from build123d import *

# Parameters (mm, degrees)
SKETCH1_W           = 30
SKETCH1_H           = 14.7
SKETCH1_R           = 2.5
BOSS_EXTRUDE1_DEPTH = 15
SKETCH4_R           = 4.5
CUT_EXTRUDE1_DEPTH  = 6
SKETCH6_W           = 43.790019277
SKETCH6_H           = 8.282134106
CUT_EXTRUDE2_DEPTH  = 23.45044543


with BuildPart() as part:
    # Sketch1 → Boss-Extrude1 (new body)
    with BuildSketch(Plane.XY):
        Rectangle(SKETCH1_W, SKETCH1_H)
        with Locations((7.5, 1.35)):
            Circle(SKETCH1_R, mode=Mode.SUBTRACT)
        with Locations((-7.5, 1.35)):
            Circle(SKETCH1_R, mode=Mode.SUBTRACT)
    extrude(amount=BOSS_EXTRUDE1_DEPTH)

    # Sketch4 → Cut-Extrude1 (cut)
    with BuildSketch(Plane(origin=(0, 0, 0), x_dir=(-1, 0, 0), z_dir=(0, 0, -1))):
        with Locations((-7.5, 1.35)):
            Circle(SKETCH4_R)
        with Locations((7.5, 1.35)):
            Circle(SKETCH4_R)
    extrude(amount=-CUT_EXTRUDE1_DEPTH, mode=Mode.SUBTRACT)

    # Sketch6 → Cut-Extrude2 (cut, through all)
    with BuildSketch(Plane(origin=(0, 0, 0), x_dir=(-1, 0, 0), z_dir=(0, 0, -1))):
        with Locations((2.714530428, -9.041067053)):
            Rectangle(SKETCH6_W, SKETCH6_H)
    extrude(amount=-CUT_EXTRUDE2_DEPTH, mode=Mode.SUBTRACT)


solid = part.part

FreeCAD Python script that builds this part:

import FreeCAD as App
import Part
import Sketcher
from FreeCAD import Vector
Q = App.Units.Quantity


def add_polygon(sketch, points):
    """Adds a closed chain of lines whose ends are joined by coincident constraints."""
    first, n = sketch.GeometryCount, len(points)
    for a, b in zip(points, points[1:] + points[:1]):
        sketch.addGeometry(Part.LineSegment(App.Vector(*a, 0), App.Vector(*b, 0)), False)
    for i in range(n):
        sketch.addConstraint(Sketcher.Constraint("Coincident", first + i, 2, first + (i + 1) % n, 1))

doc = App.newDocument("Part")
body = doc.addObject("PartDesign::Body", "Body")

# Sketch on XY plane
sketch1 = body.newObject("Sketcher::SketchObject", "Sketch")
sketch1.AttachmentSupport = (doc.getObject("XY_Plane"), [""])
sketch1.MapMode = "FlatFace"
add_polygon(sketch1, [(-15, 7.35), (-15, -7.35), (15, -7.35), (15, 7.35)])  # lines 0-3
sketch1.addGeometry(Part.Circle(Vector(-7.5, 1.35, 0), Vector(0, 0, 1), 2.5), False)  # 4
sketch1.addGeometry(Part.Circle(Vector(7.5, 1.35, 0), Vector(0, 0, 1), 2.5), False)  # 5
sketch1.addConstraint([
    Sketcher.Constraint("Vertical", 0),
    Sketcher.Constraint("Horizontal", 1),
    Sketcher.Constraint("Vertical", 2),
    Sketcher.Constraint("Horizontal", 3),
    Sketcher.Constraint("Equal", 4, 5),
    Sketcher.Constraint("Symmetric", 0, 2, 2, 2, -1, 1),
    Sketcher.Constraint("Symmetric", 4, 3, 5, 3, -2),
    Sketcher.Constraint("Diameter", 4, Q("5 mm")),
    Sketcher.Constraint("DistanceX", 1, 1, 1, 2, Q("30 mm")),
    Sketcher.Constraint("DistanceY", 0, 2, 0, 1, Q("14.7 mm")),
    Sketcher.Constraint("DistanceX", 4, 3, 5, 3, Q("15 mm")),
    Sketcher.Constraint("DistanceY", 5, 3, 2, 2, Q("6 mm")),
])
pad1 = body.newObject("PartDesign::Pad", "Pad")
pad1.Profile = sketch1
pad1.Length = 15

# Sketch on XY plane
sketch2 = body.newObject("Sketcher::SketchObject", "Sketch001")
sketch2.AttachmentSupport = (doc.getObject("XY_Plane"), [""])
sketch2.MapMode = "FlatFace"
sketch2.addGeometry([
    Part.Circle(Vector(7.5, 1.35, 0), Vector(0, 0, 1), 4.5),
    Part.Circle(Vector(-7.5, 1.35, 0), Vector(0, 0, 1), 4.5),
], False)
sketch2.addConstraint([
    Sketcher.Constraint("Equal", 0, 1),
    Sketcher.Constraint("Symmetric", 0, 3, 1, 3, -2),
    Sketcher.Constraint("Diameter", 0, Q("9 mm")),
    Sketcher.Constraint("DistanceX", 1, 3, 0, 3, Q("15 mm")),
    Sketcher.Constraint("DistanceY", -1, 1, 0, 3, Q("1.35 mm")),
])
pocket1 = body.newObject("PartDesign::Pocket", "Pocket")
pocket1.Profile = sketch2
pocket1.Length = 6
pocket1.Reversed = True

# Sketch on XY plane
sketch3 = body.newObject("Sketcher::SketchObject", "Sketch002")
sketch3.AttachmentSupport = (doc.getObject("XY_Plane"), [""])
sketch3.MapMode = "FlatFace"
add_polygon(sketch3, [(19.180479, -4.9), (19.180479, -13.182134), (-24.60954, -13.182134), (-24.60954, -4.9)])  # lines 0-3
sketch3.addConstraint([
    Sketcher.Constraint("Vertical", 0),
    Sketcher.Constraint("Horizontal", 1),
    Sketcher.Constraint("Vertical", 2),
    Sketcher.Constraint("Horizontal", 3),
    Sketcher.Constraint("DistanceY", 2, 2, -1, 1, Q("4.9 mm")),
    Sketcher.Constraint("DistanceX", 1, 2, 1, 1, Q("43.790019 mm")),
    Sketcher.Constraint("DistanceY", 0, 2, 0, 1, Q("8.282134 mm")),
    Sketcher.Constraint("DistanceX", -1, 1, 0, 2, Q("19.180479 mm")),
])
pocket2 = body.newObject("PartDesign::Pocket", "Pocket001")
pocket2.Profile = sketch3
pocket2.Type = "ThroughAll"
pocket2.Reversed = True

doc.recompute()
